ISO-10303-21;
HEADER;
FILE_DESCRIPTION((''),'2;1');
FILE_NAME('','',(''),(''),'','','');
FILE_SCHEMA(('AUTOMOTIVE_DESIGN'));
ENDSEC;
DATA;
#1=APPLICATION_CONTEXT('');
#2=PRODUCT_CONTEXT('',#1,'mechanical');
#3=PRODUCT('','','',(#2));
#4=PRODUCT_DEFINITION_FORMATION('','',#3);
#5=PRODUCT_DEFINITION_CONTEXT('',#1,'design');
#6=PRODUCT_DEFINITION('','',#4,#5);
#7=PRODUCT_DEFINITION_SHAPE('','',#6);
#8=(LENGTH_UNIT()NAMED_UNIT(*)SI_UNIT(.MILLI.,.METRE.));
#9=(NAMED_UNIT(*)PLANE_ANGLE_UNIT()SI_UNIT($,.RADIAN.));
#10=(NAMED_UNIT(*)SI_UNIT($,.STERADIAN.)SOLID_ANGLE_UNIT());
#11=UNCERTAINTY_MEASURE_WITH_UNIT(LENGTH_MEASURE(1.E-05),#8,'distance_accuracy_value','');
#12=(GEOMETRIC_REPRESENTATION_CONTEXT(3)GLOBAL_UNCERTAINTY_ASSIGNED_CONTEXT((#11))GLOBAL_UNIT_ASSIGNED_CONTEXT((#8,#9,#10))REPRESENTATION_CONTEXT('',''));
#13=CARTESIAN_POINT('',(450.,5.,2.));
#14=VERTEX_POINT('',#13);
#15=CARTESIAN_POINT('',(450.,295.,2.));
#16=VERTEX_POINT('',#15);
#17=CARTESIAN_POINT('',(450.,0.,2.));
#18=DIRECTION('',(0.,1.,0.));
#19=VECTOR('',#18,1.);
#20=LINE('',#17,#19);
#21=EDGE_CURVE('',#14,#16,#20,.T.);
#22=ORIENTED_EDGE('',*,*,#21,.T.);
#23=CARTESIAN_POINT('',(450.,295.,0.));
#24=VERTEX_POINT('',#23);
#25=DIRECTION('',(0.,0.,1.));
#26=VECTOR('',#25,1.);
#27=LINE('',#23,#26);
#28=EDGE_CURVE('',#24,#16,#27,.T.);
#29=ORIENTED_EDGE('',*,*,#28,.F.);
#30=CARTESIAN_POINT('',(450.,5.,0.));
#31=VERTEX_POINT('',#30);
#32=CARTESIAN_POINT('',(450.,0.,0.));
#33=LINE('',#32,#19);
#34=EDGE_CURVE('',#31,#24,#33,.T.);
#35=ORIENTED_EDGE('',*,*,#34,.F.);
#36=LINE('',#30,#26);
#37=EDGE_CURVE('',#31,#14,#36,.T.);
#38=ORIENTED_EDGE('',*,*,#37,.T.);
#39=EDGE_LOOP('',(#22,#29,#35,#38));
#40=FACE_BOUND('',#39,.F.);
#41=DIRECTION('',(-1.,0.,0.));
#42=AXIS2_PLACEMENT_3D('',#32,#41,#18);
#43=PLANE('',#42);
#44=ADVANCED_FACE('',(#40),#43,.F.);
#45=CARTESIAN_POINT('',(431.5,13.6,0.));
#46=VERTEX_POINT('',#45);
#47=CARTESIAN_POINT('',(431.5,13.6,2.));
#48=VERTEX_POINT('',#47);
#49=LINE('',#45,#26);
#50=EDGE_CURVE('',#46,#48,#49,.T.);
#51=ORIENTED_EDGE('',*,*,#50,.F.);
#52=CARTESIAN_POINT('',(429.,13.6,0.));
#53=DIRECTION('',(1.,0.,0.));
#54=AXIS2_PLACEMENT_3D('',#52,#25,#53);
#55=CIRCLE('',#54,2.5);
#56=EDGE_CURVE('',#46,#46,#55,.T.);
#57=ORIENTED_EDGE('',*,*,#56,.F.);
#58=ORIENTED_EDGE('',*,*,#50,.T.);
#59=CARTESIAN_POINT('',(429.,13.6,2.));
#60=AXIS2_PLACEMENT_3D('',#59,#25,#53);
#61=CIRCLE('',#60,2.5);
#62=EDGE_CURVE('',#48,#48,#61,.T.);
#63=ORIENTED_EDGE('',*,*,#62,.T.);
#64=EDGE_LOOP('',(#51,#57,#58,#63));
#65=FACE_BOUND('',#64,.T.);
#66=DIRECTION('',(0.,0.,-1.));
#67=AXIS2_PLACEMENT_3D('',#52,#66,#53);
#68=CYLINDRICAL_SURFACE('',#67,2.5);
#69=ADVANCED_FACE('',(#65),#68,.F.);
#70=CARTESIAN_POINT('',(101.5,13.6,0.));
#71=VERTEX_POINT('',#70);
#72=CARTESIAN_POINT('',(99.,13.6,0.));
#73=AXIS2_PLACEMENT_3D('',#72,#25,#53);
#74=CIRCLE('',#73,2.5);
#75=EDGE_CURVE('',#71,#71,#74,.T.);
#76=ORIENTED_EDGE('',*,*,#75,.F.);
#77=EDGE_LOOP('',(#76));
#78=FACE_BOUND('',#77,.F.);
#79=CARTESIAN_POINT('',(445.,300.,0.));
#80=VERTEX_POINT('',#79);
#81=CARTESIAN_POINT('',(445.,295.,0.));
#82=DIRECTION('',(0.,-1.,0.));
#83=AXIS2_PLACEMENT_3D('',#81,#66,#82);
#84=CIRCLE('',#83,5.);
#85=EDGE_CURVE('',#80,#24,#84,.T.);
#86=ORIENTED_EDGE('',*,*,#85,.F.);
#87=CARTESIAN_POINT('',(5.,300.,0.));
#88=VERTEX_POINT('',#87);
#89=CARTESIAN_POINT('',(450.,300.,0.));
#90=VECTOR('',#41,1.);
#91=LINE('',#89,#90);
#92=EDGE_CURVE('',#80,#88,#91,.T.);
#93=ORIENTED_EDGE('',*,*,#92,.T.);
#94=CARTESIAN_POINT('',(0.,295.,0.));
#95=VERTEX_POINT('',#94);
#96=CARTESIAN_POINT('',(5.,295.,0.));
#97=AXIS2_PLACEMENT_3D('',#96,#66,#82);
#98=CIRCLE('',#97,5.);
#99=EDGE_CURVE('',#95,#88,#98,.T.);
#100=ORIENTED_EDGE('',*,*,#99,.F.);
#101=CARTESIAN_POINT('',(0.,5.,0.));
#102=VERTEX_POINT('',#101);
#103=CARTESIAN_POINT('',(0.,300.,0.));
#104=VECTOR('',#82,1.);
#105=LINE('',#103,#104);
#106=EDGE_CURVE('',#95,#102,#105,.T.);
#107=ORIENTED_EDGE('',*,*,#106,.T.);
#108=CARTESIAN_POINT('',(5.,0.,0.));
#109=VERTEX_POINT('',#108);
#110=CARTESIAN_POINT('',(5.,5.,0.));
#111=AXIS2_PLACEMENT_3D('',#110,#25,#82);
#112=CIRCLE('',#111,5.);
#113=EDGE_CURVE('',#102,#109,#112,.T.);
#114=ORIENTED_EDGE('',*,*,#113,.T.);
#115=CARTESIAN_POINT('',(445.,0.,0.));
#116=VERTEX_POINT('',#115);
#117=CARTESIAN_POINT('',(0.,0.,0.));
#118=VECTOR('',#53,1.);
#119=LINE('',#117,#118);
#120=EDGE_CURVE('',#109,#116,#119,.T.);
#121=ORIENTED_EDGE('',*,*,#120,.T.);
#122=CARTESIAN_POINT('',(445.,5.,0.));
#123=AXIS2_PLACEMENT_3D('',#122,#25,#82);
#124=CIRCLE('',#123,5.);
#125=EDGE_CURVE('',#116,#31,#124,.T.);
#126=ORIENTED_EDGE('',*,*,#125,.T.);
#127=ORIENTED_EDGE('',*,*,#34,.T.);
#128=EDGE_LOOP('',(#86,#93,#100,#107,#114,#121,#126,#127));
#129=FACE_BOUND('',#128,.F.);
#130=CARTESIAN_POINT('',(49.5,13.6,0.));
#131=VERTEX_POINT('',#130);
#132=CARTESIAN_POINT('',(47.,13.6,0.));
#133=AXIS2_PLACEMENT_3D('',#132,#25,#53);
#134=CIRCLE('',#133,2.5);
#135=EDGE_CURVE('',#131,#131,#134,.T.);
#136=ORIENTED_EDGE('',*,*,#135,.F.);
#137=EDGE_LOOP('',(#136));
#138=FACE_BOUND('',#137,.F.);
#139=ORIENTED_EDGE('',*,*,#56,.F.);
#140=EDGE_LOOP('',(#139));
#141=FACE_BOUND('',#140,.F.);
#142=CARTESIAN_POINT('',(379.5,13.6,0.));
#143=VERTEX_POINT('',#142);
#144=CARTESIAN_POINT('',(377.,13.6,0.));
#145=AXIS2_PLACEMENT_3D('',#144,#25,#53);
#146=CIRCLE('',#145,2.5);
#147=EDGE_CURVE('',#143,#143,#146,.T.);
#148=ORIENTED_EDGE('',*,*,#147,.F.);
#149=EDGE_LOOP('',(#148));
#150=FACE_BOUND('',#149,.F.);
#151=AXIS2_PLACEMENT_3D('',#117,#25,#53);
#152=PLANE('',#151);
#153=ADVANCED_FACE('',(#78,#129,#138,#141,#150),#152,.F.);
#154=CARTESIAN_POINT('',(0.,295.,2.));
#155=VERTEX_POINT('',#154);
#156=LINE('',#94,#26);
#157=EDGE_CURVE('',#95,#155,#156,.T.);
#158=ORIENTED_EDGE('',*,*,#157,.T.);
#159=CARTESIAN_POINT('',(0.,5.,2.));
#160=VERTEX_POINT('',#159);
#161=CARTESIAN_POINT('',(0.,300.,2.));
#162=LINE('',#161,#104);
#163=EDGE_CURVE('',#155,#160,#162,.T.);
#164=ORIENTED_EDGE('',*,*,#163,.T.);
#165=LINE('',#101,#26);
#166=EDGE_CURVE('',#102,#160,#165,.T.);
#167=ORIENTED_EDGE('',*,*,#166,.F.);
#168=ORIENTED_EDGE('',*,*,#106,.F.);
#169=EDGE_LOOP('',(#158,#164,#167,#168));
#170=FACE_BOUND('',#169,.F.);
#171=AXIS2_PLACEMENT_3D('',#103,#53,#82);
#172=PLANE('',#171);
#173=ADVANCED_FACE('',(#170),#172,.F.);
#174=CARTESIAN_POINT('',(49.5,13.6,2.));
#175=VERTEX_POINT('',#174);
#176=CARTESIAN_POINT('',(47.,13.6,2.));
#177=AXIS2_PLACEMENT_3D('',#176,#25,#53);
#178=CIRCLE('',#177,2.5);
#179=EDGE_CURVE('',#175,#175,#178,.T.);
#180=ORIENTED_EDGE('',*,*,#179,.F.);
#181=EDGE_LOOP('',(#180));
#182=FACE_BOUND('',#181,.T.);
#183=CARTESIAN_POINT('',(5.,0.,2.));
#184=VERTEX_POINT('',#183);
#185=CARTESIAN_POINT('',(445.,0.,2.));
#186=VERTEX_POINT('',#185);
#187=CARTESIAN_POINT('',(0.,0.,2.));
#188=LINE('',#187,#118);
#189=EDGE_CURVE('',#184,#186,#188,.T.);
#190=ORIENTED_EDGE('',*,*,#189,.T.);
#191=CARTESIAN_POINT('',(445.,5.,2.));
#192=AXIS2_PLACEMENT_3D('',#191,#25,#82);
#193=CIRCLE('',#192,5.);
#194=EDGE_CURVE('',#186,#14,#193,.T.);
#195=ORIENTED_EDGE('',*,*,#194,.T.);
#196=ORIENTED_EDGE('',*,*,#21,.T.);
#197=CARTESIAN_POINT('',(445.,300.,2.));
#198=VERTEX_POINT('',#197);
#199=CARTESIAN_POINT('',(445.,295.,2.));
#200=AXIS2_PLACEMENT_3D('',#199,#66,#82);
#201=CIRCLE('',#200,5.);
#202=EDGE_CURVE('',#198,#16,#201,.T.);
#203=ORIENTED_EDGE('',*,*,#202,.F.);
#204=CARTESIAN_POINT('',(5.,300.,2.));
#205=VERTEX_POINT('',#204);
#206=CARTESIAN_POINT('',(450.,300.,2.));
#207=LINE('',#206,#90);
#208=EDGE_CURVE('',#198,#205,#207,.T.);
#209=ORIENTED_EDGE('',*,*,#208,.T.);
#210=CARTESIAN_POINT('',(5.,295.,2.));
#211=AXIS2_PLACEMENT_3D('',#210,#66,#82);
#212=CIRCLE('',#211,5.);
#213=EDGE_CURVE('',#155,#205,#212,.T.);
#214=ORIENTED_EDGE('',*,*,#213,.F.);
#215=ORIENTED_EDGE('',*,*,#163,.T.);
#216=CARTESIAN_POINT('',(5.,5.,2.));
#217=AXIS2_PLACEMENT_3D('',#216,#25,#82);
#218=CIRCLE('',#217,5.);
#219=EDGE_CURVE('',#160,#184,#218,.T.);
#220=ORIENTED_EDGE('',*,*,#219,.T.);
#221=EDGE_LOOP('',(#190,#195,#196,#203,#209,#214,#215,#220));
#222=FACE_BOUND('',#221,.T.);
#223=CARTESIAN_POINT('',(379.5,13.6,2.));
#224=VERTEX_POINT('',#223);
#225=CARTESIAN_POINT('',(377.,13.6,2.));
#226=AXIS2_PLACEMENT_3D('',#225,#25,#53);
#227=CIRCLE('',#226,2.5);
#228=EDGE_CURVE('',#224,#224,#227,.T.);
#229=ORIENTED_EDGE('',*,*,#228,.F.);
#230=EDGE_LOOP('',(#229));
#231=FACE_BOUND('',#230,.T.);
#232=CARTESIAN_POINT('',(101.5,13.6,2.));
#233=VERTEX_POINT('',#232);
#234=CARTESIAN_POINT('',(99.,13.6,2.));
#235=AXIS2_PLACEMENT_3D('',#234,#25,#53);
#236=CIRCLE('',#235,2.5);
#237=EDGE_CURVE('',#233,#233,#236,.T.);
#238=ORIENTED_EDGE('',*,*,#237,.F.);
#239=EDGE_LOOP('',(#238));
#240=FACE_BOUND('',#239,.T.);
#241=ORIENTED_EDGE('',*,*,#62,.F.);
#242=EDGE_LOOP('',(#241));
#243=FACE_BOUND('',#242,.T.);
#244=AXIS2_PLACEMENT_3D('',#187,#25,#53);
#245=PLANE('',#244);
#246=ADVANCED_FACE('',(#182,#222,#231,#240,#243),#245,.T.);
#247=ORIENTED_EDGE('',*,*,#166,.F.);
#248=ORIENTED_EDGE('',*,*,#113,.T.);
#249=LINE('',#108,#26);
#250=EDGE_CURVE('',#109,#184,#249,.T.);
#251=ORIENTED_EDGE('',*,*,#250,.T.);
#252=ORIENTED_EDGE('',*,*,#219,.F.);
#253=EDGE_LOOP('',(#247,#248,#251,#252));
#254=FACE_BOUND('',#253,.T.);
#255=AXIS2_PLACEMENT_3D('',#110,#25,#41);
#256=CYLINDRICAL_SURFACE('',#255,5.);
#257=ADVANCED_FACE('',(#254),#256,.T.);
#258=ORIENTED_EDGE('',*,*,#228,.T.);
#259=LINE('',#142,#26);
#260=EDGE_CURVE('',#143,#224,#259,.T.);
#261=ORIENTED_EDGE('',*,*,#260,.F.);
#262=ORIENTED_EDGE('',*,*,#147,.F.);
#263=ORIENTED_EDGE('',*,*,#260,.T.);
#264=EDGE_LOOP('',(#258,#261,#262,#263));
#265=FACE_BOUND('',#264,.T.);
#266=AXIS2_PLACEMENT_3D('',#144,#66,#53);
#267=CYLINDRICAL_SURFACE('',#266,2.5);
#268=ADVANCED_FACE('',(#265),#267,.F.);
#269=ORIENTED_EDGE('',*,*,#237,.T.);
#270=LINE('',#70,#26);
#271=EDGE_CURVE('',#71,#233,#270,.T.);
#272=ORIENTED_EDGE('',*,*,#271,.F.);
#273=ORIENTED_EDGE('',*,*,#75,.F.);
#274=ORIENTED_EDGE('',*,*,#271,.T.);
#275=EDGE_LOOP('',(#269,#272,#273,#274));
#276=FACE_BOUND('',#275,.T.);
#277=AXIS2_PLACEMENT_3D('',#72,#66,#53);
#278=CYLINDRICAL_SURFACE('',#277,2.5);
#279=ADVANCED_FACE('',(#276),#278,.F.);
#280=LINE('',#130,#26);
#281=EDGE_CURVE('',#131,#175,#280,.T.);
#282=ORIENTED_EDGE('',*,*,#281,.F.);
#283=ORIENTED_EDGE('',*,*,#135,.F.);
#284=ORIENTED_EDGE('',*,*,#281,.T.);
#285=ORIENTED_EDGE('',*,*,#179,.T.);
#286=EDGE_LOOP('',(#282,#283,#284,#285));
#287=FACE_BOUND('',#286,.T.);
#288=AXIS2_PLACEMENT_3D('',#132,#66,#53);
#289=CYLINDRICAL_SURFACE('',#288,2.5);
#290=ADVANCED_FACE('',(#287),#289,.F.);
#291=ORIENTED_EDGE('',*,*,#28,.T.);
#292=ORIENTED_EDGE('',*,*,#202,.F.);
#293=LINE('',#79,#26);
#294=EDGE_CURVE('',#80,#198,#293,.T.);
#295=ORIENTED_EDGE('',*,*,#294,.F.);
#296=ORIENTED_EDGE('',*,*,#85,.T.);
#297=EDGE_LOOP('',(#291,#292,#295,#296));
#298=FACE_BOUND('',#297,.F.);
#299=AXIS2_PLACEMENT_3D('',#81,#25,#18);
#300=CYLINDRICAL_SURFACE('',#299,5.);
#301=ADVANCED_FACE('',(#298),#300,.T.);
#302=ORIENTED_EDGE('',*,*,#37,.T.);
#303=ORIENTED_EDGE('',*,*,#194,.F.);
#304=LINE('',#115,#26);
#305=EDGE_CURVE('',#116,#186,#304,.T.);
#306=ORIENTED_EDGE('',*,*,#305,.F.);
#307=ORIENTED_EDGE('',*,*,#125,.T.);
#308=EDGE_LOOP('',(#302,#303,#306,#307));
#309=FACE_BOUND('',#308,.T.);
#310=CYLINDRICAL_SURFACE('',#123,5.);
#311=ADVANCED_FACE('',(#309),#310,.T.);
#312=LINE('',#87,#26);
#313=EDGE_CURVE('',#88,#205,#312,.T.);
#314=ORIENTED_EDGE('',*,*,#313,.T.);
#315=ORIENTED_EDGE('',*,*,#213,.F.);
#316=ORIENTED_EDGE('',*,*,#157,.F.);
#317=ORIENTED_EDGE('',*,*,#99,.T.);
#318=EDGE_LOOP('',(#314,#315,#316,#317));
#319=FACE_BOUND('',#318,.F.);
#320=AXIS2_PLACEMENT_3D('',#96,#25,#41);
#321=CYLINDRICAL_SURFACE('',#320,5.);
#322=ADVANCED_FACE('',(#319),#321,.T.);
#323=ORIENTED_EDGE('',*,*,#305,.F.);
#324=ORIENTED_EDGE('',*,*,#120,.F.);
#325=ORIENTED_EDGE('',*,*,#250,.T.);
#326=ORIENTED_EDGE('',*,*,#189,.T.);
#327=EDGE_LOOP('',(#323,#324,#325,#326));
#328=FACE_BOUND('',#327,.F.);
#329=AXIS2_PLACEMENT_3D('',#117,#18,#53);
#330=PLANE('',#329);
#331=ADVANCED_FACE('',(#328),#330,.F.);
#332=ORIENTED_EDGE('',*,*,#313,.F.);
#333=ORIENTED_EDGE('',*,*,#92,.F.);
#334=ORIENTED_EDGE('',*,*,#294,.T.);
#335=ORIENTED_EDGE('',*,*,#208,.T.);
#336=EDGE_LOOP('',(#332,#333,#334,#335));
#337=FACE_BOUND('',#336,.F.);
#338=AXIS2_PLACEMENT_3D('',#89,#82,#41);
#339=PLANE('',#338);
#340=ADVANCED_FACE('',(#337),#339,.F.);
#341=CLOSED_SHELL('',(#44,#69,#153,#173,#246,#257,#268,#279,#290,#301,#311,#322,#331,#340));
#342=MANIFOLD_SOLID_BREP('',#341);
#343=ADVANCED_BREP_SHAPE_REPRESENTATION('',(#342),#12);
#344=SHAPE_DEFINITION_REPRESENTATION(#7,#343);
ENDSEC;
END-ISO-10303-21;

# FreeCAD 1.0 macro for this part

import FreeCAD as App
import Part
import Sketcher

V = App.Vector
Q = App.Units.Quantity


def edges_at(feature, points):
    """Names of the edges that pass closest to the given points."""
    edges = feature.Shape.Edges
    near = lambda p: min(range(len(edges)), key=lambda i: edges[i].distToShape(Part.Vertex(*p))[0])
    return sorted({f"Edge{near(p) + 1}" for p in points})


def add_polygon(sketch, points):
    """Adds a closed chain of lines whose ends are joined by coincident constraints."""
    first, n = sketch.GeometryCount, len(points)
    for a, b in zip(points, points[1:] + points[:1]):
        sketch.addGeometry(Part.LineSegment(App.Vector(*a, 0), App.Vector(*b, 0)), False)
    for i in range(n):
        sketch.addConstraint(Sketcher.Constraint("Coincident", first + i, 2, first + (i + 1) % n, 1))

doc = App.newDocument("Part")
body = doc.addObject("PartDesign::Body", "Body")

sketch1 = body.newObject("Sketcher::SketchObject", "Sketch")
sketch1.AttachmentSupport = (doc.getObject("XY_Plane"), [""])
sketch1.MapMode = "FlatFace"
add_polygon(sketch1, [(0, 300), (0, 0), (450, 0), (450, 300)])
sketch1.addGeometry(Part.Circle(V(47, 13.6, 0), V(0, 0, 1), 2.5), False)
sketch1.addGeometry(Part.Circle(V(99, 13.6, 0), V(0, 0, 1), 2.5), False)
sketch1.addGeometry(Part.Circle(V(377, 13.6, 0), V(0, 0, 1), 2.5), False)
sketch1.addGeometry(Part.Circle(V(429, 13.6, 0), V(0, 0, 1), 2.5), False)
sketch1.addConstraint(Sketcher.Constraint("Vertical", 0))
sketch1.addConstraint(Sketcher.Constraint("Horizontal", 1))
sketch1.addConstraint(Sketcher.Constraint("Vertical", 2))
sketch1.addConstraint(Sketcher.Constraint("Horizontal", 3))
sketch1.addConstraint(Sketcher.Constraint("Coincident", 0, 2, -1, 1))
sketch1.addConstraint(Sketcher.Constraint("Equal", 4, 5))
sketch1.addConstraint(Sketcher.Constraint("Equal", 5, 6))
sketch1.addConstraint(Sketcher.Constraint("Equal", 6, 7))
sketch1.addConstraint(Sketcher.Constraint("Horizontal", 4, 3, 5, 3))
sketch1.addConstraint(Sketcher.Constraint("Horizontal", 5, 3, 6, 3))
sketch1.addConstraint(Sketcher.Constraint("Horizontal", 6, 3, 7, 3))
sketch1.addConstraint(Sketcher.Constraint("Diameter", 4, Q("5 mm")))
sketch1.addConstraint(Sketcher.Constraint("DistanceX", 1, 1, 1, 2, Q("450 mm")))
sketch1.addConstraint(Sketcher.Constraint("DistanceY", 0, 2, 0, 1, Q("300 mm")))
sketch1.addConstraint(Sketcher.Constraint("DistanceX", -1, 1, 4, 3, Q("47 mm")))
sketch1.addConstraint(Sketcher.Constraint("DistanceX", 4, 3, 5, 3, Q("52 mm")))
sketch1.addConstraint(Sketcher.Constraint("DistanceX", 6, 3, 7, 3, Q("52 mm")))
sketch1.addConstraint(Sketcher.Constraint("DistanceX", 7, 3, 1, 2, Q("21 mm")))
sketch1.addConstraint(Sketcher.Constraint("DistanceY", -1, 1, 4, 3, Q("13.6 mm")))
pad1 = body.newObject("PartDesign::Pad", "Pad")
pad1.Profile = sketch1
pad1.Length = 2
doc.recompute()

fillet = body.newObject("PartDesign::Fillet", "Fillet")
fillet.Base = (pad1, edges_at(pad1, [
    (450, 0, 1),
    (450, 300, 1),
    (0, 0, 1),
    (0, 300, 1),
]))
fillet.Radius = 5

doc.recompute()
